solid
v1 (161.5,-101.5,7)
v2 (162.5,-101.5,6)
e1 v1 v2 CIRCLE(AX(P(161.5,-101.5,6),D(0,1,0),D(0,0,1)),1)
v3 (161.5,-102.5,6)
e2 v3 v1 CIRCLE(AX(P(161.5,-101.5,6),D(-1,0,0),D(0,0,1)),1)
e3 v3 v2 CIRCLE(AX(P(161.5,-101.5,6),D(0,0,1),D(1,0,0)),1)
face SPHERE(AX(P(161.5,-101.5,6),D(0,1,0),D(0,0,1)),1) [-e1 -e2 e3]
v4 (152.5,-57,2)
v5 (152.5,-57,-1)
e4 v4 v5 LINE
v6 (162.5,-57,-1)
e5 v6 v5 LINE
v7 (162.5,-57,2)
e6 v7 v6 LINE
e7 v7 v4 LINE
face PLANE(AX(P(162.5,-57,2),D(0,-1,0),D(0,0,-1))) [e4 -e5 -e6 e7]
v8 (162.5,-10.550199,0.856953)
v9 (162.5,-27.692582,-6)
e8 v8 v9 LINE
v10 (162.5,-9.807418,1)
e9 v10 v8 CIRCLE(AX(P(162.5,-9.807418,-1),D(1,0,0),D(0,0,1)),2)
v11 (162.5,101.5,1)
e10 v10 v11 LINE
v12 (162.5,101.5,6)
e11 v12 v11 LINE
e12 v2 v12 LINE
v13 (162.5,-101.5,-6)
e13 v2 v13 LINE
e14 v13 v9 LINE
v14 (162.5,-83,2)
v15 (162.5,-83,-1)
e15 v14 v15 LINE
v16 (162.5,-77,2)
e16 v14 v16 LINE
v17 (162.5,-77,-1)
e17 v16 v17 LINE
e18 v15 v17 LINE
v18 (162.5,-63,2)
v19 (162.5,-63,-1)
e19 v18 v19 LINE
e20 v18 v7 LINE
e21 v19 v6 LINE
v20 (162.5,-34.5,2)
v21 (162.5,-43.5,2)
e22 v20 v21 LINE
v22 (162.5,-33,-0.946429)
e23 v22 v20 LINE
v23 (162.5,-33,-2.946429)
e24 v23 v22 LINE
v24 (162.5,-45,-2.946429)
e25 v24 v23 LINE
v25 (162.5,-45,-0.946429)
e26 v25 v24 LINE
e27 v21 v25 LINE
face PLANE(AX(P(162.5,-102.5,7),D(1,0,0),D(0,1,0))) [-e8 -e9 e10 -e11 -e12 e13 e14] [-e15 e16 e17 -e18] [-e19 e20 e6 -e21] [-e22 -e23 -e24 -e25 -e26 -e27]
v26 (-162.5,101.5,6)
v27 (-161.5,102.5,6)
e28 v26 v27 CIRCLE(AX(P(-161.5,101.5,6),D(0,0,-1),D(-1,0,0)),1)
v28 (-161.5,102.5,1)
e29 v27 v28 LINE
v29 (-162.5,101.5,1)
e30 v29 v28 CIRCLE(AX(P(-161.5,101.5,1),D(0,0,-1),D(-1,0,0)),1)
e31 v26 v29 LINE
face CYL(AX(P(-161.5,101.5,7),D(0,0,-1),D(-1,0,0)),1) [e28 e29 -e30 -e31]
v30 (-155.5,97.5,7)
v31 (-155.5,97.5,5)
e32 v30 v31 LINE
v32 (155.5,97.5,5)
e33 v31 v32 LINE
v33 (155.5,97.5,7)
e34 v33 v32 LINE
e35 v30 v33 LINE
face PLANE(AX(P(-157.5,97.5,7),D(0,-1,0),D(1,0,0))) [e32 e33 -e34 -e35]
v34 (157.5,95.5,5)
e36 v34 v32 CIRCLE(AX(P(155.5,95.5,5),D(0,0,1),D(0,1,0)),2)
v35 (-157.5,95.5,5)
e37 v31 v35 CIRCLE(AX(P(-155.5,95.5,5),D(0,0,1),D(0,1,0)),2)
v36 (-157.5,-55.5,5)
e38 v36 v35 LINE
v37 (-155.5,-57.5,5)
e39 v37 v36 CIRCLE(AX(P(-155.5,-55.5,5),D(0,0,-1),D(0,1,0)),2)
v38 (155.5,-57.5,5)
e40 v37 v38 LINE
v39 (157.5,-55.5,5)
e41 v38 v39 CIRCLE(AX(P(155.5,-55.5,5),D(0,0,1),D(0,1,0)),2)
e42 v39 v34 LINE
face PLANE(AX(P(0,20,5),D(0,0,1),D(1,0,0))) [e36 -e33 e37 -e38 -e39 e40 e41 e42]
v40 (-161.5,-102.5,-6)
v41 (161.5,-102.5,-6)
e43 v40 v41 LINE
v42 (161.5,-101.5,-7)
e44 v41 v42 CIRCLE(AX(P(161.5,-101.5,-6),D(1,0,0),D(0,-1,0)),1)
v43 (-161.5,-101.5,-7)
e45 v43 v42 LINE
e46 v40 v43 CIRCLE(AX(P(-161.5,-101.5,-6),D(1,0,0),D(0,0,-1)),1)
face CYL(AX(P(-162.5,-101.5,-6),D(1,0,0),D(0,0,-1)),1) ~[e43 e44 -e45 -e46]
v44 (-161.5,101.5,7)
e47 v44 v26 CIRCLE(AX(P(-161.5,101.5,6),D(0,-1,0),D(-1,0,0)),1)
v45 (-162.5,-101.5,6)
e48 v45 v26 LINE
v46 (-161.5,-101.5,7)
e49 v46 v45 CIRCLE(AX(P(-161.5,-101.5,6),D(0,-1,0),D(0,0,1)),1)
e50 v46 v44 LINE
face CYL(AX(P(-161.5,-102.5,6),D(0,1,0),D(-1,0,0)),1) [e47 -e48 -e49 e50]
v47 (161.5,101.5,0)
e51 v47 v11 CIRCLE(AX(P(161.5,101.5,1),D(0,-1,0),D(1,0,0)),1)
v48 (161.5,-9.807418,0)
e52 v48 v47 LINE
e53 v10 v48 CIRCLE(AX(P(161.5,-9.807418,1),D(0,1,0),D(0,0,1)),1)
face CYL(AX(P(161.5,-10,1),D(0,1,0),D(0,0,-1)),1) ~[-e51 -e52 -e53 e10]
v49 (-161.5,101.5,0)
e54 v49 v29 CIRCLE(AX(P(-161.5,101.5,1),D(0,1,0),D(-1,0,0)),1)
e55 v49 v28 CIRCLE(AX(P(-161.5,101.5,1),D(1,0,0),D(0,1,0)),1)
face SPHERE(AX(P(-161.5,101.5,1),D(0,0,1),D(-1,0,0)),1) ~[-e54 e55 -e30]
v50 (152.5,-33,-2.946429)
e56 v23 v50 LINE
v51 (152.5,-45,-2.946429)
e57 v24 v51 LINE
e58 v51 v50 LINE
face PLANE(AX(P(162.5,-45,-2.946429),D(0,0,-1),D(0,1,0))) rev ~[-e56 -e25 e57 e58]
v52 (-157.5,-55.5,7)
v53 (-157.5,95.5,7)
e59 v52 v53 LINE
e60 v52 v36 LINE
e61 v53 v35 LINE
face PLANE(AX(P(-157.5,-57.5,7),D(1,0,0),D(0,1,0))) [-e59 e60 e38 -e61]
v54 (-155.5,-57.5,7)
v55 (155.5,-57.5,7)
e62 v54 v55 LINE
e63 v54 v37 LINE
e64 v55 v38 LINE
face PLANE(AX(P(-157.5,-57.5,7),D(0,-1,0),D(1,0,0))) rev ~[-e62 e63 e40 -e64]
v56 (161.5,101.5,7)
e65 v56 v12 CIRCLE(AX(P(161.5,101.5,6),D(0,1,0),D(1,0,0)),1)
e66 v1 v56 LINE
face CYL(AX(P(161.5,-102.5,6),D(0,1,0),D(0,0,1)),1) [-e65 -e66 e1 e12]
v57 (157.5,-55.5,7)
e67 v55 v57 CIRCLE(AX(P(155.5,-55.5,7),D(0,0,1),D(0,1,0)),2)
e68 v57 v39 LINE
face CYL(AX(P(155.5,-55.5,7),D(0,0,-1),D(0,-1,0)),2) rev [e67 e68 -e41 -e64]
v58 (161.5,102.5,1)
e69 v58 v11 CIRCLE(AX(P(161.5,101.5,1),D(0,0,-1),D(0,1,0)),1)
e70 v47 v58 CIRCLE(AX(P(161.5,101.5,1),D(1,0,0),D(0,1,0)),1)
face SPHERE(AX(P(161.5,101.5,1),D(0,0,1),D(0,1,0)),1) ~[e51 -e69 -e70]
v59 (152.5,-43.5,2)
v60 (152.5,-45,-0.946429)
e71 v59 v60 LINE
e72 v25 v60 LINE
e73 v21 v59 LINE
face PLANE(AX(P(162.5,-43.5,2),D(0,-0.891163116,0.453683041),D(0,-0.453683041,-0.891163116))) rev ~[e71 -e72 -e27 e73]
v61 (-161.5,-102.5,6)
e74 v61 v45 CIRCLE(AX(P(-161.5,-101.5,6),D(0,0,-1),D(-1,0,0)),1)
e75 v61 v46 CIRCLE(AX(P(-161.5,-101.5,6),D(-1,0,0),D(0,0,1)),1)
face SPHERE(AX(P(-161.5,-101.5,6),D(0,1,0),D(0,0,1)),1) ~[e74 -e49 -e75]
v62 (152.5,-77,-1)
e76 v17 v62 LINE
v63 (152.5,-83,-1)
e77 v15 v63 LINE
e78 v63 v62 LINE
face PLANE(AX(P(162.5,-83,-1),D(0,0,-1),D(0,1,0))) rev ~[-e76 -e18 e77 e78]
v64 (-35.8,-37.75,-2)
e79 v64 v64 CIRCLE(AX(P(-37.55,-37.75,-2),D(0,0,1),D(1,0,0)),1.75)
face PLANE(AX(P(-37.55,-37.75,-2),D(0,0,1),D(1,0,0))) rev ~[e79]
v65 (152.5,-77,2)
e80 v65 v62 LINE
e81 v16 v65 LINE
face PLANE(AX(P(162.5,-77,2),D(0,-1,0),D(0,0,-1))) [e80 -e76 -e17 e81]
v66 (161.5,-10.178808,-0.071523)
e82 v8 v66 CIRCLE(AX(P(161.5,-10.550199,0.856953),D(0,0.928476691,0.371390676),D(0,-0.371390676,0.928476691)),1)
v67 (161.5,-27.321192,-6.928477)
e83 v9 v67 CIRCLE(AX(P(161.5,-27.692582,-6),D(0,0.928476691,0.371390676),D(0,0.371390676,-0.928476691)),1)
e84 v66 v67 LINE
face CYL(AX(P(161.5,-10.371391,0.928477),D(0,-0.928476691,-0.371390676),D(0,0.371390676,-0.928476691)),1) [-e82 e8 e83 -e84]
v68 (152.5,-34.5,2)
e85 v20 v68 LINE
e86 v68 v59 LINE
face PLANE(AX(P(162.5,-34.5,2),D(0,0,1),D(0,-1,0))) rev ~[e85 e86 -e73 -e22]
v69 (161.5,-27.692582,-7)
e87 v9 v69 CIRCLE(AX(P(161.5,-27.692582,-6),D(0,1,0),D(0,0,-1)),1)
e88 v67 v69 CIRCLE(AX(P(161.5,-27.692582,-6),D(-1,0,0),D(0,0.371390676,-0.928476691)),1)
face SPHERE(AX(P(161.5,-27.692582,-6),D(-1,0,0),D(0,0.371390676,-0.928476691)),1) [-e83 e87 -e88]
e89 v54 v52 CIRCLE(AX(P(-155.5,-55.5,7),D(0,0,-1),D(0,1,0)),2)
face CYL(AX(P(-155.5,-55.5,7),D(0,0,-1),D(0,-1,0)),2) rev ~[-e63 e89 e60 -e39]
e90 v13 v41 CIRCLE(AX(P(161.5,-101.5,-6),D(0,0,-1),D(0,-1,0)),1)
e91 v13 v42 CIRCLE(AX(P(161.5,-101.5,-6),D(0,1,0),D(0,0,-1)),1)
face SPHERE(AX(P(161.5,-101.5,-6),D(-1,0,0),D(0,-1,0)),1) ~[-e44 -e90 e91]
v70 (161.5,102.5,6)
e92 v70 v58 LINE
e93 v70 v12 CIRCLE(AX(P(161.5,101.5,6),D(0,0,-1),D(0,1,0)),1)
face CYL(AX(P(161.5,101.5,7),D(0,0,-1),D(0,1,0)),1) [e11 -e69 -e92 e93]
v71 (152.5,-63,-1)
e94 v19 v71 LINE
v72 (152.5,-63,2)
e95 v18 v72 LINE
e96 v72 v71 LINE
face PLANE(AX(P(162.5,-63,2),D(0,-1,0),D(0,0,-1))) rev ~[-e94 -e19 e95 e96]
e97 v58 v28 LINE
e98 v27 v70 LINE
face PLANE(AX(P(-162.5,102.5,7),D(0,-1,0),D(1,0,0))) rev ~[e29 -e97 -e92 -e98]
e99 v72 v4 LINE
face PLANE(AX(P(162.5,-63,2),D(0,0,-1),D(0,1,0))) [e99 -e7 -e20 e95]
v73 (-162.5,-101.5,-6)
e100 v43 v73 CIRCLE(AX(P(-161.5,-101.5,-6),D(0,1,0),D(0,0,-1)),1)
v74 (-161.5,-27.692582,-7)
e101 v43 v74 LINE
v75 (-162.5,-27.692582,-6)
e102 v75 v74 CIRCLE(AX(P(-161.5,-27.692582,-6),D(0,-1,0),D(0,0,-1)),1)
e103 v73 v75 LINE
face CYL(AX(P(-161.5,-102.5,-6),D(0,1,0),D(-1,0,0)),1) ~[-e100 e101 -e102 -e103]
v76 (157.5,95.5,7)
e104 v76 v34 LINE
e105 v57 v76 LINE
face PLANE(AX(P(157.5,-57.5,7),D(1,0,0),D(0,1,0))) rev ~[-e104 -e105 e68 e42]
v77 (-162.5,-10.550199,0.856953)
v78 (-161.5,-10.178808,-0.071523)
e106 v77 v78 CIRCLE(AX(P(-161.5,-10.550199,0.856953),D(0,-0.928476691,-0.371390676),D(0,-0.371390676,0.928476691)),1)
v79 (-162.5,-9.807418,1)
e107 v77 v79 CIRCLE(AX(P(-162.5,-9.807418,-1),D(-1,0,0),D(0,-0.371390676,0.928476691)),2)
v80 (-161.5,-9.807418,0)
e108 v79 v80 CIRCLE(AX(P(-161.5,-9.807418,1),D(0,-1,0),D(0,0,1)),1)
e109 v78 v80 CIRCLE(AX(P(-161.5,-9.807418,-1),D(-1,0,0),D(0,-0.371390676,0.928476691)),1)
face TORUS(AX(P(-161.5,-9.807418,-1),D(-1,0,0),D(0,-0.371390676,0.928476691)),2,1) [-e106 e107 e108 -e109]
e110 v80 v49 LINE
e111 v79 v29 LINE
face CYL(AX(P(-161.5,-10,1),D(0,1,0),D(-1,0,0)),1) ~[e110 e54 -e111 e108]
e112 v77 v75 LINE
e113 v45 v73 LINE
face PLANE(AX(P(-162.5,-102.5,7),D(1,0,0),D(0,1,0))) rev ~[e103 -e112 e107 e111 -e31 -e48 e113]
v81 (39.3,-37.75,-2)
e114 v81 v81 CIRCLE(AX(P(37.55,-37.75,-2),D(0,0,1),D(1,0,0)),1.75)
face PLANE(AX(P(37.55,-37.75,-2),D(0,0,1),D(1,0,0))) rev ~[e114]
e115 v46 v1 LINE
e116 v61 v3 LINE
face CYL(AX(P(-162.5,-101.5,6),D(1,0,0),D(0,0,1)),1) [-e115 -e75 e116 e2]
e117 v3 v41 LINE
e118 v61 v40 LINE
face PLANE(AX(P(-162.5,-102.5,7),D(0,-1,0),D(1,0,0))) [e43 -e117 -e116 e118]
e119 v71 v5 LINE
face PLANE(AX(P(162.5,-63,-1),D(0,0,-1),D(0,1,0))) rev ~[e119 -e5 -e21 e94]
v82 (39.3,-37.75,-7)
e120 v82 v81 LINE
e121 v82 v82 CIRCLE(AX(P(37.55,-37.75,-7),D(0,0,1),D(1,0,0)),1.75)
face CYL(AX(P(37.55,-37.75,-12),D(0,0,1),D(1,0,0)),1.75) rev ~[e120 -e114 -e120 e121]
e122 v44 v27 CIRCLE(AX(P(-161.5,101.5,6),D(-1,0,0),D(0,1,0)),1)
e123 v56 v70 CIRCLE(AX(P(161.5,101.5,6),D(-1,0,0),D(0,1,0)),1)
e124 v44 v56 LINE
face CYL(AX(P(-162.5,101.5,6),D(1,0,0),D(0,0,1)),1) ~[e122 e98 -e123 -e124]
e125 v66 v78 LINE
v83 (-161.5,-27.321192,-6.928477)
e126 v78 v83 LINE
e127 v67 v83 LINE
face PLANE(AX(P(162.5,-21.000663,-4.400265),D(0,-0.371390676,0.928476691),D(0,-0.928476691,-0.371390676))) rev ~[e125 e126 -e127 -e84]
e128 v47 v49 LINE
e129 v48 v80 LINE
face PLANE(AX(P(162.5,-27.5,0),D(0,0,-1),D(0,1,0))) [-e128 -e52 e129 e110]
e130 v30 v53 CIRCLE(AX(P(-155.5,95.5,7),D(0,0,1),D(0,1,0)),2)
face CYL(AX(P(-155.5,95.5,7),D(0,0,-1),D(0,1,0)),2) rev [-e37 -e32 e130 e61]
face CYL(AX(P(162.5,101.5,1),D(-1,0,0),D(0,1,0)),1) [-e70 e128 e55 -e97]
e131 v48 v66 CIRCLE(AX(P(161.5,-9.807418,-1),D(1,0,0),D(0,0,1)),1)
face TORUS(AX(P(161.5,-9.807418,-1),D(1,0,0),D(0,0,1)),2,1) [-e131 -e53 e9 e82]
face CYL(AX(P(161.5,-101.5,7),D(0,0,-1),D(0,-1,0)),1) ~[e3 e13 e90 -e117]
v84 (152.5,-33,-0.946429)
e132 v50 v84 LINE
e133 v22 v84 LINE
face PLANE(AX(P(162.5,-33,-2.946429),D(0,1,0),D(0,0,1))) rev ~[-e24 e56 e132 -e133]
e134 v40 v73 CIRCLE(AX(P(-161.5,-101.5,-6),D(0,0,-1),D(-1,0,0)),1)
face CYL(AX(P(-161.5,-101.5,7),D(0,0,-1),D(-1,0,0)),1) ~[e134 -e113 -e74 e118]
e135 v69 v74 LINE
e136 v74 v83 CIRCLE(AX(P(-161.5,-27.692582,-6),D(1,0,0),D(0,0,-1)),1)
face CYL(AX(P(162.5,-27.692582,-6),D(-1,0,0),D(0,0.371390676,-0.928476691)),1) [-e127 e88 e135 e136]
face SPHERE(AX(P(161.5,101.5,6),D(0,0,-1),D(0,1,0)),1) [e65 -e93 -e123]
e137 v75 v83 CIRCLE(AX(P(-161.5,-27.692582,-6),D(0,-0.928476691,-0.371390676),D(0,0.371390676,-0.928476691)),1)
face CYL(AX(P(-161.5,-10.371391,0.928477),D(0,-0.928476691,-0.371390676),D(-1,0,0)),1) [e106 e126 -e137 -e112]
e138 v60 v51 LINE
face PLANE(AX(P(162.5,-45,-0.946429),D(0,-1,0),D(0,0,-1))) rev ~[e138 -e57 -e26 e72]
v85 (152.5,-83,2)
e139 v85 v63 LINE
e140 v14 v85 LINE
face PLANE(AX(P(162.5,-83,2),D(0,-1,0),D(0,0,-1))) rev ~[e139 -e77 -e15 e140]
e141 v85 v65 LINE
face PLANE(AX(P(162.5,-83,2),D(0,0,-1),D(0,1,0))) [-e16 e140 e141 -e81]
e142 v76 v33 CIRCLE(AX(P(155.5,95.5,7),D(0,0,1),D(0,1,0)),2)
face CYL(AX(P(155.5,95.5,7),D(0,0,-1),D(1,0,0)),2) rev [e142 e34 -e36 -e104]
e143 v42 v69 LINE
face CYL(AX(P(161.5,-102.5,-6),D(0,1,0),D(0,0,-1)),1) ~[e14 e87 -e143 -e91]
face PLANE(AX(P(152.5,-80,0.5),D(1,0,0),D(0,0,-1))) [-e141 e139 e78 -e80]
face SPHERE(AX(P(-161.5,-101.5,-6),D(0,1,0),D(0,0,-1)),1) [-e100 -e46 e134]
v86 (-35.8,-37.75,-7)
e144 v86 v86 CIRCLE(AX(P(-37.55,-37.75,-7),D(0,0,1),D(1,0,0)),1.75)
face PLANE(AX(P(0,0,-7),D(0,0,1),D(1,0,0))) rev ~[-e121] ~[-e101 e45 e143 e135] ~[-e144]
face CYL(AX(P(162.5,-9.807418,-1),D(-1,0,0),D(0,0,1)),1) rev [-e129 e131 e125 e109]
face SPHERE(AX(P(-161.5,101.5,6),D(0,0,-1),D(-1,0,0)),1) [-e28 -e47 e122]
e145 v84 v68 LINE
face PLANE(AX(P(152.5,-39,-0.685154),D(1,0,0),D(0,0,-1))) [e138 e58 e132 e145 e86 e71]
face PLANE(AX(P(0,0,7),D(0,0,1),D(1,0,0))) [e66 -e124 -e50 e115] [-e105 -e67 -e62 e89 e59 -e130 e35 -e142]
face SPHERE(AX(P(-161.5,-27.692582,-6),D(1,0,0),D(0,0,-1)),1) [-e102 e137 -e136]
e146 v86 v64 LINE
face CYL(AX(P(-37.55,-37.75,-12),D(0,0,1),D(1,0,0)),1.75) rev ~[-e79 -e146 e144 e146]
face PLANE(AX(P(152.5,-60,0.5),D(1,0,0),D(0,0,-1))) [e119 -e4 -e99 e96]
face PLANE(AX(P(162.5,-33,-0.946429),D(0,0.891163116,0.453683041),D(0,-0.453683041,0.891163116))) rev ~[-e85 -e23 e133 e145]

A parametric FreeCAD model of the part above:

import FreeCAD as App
import Part
import Sketcher
Q = App.Units.Quantity


def edges_at(feature, points):
    """Names of the edges that pass closest to the given points."""
    edges = feature.Shape.Edges
    near = lambda p: min(range(len(edges)), key=lambda i: edges[i].distToShape(Part.Vertex(*p))[0])
    return sorted({f"Edge{near(p) + 1}" for p in points})


def faces_at(feature, points):
    """Names of the faces that lie closest to the given points."""
    faces = feature.Shape.Faces
    near = lambda p: min(range(len(faces)), key=lambda i: faces[i].distToShape(Part.Vertex(*p))[0])
    return sorted({f"Face{near(p) + 1}" for p in points})


def add_polygon(sketch, points):
    """Adds a closed chain of lines whose ends are joined by coincident constraints."""
    first, n = sketch.GeometryCount, len(points)
    for a, b in zip(points, points[1:] + points[:1]):
        sketch.addGeometry(Part.LineSegment(App.Vector(*a, 0), App.Vector(*b, 0)), False)
    for i in range(n):
        sketch.addConstraint(Sketcher.Constraint("Coincident", first + i, 2, first + (i + 1) % n, 1))

doc = App.newDocument("Part")
body = doc.addObject("PartDesign::Body", "Body")

# Sketch on XY plane
sketch1 = body.newObject("Sketcher::SketchObject", "Sketch")
sketch1.AttachmentSupport = (doc.getObject("XY_Plane"), [""])
sketch1.MapMode = "FlatFace"
sketch1.AttachmentOffset = App.Placement(App.Vector(0, 0, 7), App.Rotation())
add_polygon(sketch1, [(-162, 102), (-162, -102), (162, -102), (162, 102)])  # lines 0-3
sketch1.addConstraint(Sketcher.Constraint("Vertical", 0))
sketch1.addConstraint(Sketcher.Constraint("Horizontal", 1))
sketch1.addConstraint(Sketcher.Constraint("Vertical", 2))
sketch1.addConstraint(Sketcher.Constraint("Horizontal", 3))
sketch1.addConstraint(Sketcher.Constraint("Symmetric", 0, 2, 2, 2, -1, 1))
sketch1.addConstraint(Sketcher.Constraint("DistanceX", 1, 1, 1, 2, Q("325 mm")))
sketch1.addConstraint(Sketcher.Constraint("DistanceY", 0, 2, 0, 1, Q("205 mm")))
pad1 = body.newObject("PartDesign::Pad", "Pad")
pad1.Profile = sketch1
pad1.Length = 14
pad1.Reversed = True

# Sketch on YZ plane
sketch2 = body.newObject("Sketcher::SketchObject", "Sketch001")
sketch2.AttachmentSupport = (doc.getObject("YZ_Plane"), [""])
sketch2.MapMode = "FlatFace"
sketch2.AttachmentOffset = App.Placement(App.Vector(0, 0, 162.5), App.Rotation())
add_polygon(sketch2, [(102, 0), (-28, 0), (-28, -7), (102, -7)])  # lines 0-3
sketch2.addConstraint(Sketcher.Constraint("Horizontal", 0))
sketch2.addConstraint(Sketcher.Constraint("Vertical", 1))
sketch2.addConstraint(Sketcher.Constraint("Horizontal", 2))
sketch2.addConstraint(Sketcher.Constraint("Vertical", 3))
sketch2.addConstraint(Sketcher.Constraint("PointOnObject", 0, 2, -1))
sketch2.addConstraint(Sketcher.Constraint("DistanceX", 0, 2, 0, 1, Q("130 mm")))
sketch2.addConstraint(Sketcher.Constraint("DistanceY", 1, 2, 1, 1, Q("7 mm")))
sketch2.addConstraint(Sketcher.Constraint("DistanceX", 0, 2, -1, 1, Q("27.5 mm")))
pocket1 = body.newObject("PartDesign::Pocket", "Pocket")
pocket1.Profile = sketch2
pocket1.Type = "ThroughAll"

# Sketch on YZ plane
sketch3 = body.newObject("Sketcher::SketchObject", "Sketch002")
sketch3.AttachmentSupport = (doc.getObject("YZ_Plane"), [""])
sketch3.MapMode = "FlatFace"
sketch3.AttachmentOffset = App.Placement(App.Vector(0, 0, 162.5), App.Rotation())
add_polygon(sketch3, [(-43.5, 2), (-45, -0.9), (-45, -2.9), (-33, -2.9), (-33, -0.9), (-34.5, 2)])  # lines 0-5
sketch3.addConstraint(Sketcher.Constraint("Vertical", 1))
sketch3.addConstraint(Sketcher.Constraint("Horizontal", 2))
sketch3.addConstraint(Sketcher.Constraint("Vertical", 3))
sketch3.addConstraint(Sketcher.Constraint("Horizontal", 5))
sketch3.addConstraint(Sketcher.Constraint("Horizontal", 0, 2, 3, 2))
sketch3.addConstraint(Sketcher.Constraint("Equal", 0, 4))
sketch3.addConstraint(Sketcher.Constraint("DistanceX", 2, 1, 2, 2, Q("12 mm")))
sketch3.addConstraint(Sketcher.Constraint("DistanceX", 5, 2, 5, 1, Q("9 mm")))
sketch3.addConstraint(Sketcher.Constraint("DistanceY", 1, 2, 1, 1, Q("2 mm")))
sketch3.addConstraint(Sketcher.Constraint("DistanceX", 0, 2, -1, 1, Q("45 mm")))
sketch3.addConstraint(Sketcher.Constraint("DistanceY", -1, 1, 4, 2, Q("2 mm")))
sketch3.addConstraint(Sketcher.Constraint("DistanceY", 0, 2, -1, 1, Q("0.946429 mm")))
pocket2 = body.newObject("PartDesign::Pocket", "Pocket001")
pocket2.Profile = sketch3
pocket2.Length = 10

# Sketch on YZ plane
sketch4 = body.newObject("Sketcher::SketchObject", "Sketch003")
sketch4.AttachmentSupport = (doc.getObject("YZ_Plane"), [""])
sketch4.MapMode = "FlatFace"
sketch4.AttachmentOffset = App.Placement(App.Vector(0, 0, 162.5), App.Rotation())
add_polygon(sketch4, [(-57, 2), (-63, 2), (-63, -1), (-57, -1)])  # lines 0-3
sketch4.addConstraint(Sketcher.Constraint("Horizontal", 0))
sketch4.addConstraint(Sketcher.Constraint("Vertical", 1))
sketch4.addConstraint(Sketcher.Constraint("Horizontal", 2))
sketch4.addConstraint(Sketcher.Constraint("Vertical", 3))
sketch4.addConstraint(Sketcher.Constraint("DistanceX", 0, 2, 0, 1, Q("6 mm")))
sketch4.addConstraint(Sketcher.Constraint("DistanceY", 1, 2, 1, 1, Q("3 mm")))
sketch4.addConstraint(Sketcher.Constraint("DistanceX", 0, 2, -1, 1, Q("63 mm")))
sketch4.addConstraint(Sketcher.Constraint("DistanceY", -1, 1, 0, 2, Q("2 mm")))
pocket3 = body.newObject("PartDesign::Pocket", "Pocket002")
pocket3.Profile = sketch4
pocket3.Length = 10

# Sketch on YZ plane
sketch5 = body.newObject("Sketcher::SketchObject", "Sketch004")
sketch5.AttachmentSupport = (doc.getObject("YZ_Plane"), [""])
sketch5.MapMode = "FlatFace"
sketch5.AttachmentOffset = App.Placement(App.Vector(0, 0, 162.5), App.Rotation())
add_polygon(sketch5, [(-77, 2), (-83, 2), (-83, -1), (-77, -1)])  # lines 0-3
sketch5.addConstraint(Sketcher.Constraint("Horizontal", 0))
sketch5.addConstraint(Sketcher.Constraint("Vertical", 1))
sketch5.addConstraint(Sketcher.Constraint("Horizontal", 2))
sketch5.addConstraint(Sketcher.Constraint("Vertical", 3))
sketch5.addConstraint(Sketcher.Constraint("DistanceX", 0, 2, 0, 1, Q("6 mm")))
sketch5.addConstraint(Sketcher.Constraint("DistanceY", 1, 2, 1, 1, Q("3 mm")))
sketch5.addConstraint(Sketcher.Constraint("DistanceX", 0, 2, -1, 1, Q("83 mm")))
sketch5.addConstraint(Sketcher.Constraint("DistanceY", -1, 1, 0, 2, Q("2 mm")))
pocket4 = body.newObject("PartDesign::Pocket", "Pocket003")
pocket4.Profile = sketch5
pocket4.Length = 10

# Sketch on XY plane
sketch6 = body.newObject("Sketcher::SketchObject", "Sketch005")
sketch6.AttachmentSupport = (doc.getObject("XY_Plane"), [""])
sketch6.MapMode = "FlatFace"
sketch6.AttachmentOffset = App.Placement(App.Vector(0, 0, 7), App.Rotation())
add_polygon(sketch6, [(-158, 98), (-158, -58), (158, -58), (158, 98)])  # lines 0-3
sketch6.addConstraint(Sketcher.Constraint("Vertical", 0))
sketch6.addConstraint(Sketcher.Constraint("Horizontal", 1))
sketch6.addConstraint(Sketcher.Constraint("Vertical", 2))
sketch6.addConstraint(Sketcher.Constraint("Horizontal", 3))
sketch6.addConstraint(Sketcher.Constraint("DistanceX", 1, 1, 1, 2, Q("315 mm")))
sketch6.addConstraint(Sketcher.Constraint("DistanceY", 0, 2, 0, 1, Q("155 mm")))
sketch6.addConstraint(Sketcher.Constraint("DistanceX", 0, 2, -1, 1, Q("157.5 mm")))
sketch6.addConstraint(Sketcher.Constraint("DistanceY", 0, 2, -1, 1, Q("57.5 mm")))
pocket5 = body.newObject("PartDesign::Pocket", "Pocket004")
pocket5.Profile = sketch6
pocket5.Length = 2
doc.recompute()

datumplane = body.newObject("PartDesign::Plane", "DatumPlane")
datumplane.AttachmentSupport = (doc.getObject("XY_Plane"), [""])
datumplane.MapMode = "FlatFace"
datumplane.AttachmentOffset = App.Placement(App.Vector(0, 0, -7), App.Rotation())
draft = body.newObject("PartDesign::Draft", "Draft")
draft.Base = (pocket5, faces_at(pocket5, [(0, -27.5, -3.5)]))
draft.NeutralPlane = (datumplane, [""])
draft.Angle = 68.198591
draft.Reversed = True

# Sketch on XY plane
sketch7 = body.newObject("Sketcher::SketchObject", "Sketch006")
sketch7.AttachmentSupport = (doc.getObject("XY_Plane"), [""])
sketch7.MapMode = "FlatFace"
sketch7.AttachmentOffset = App.Placement(App.Vector(0, 0, -7), App.Rotation())
sketch7.addGeometry(Part.Circle(App.Vector(37.5, -37.8, 0), App.Vector(0, 0, 1), 1.8), False)
sketch7.addGeometry(Part.Circle(App.Vector(-37.5, -37.8, 0), App.Vector(0, 0, 1), 1.8), False)
sketch7.addConstraint(Sketcher.Constraint("Equal", 0, 1))
sketch7.addConstraint(Sketcher.Constraint("Symmetric", 0, 3, 1, 3, -2))
sketch7.addConstraint(Sketcher.Constraint("Diameter", 0, Q("3.5 mm")))
sketch7.addConstraint(Sketcher.Constraint("DistanceX", 1, 3, 0, 3, Q("75.1 mm")))
sketch7.addConstraint(Sketcher.Constraint("DistanceY", 0, 3, -1, 1, Q("37.75 mm")))
doc.recompute()
hole = body.newObject("PartDesign::Hole", "Hole")
hole.Profile = sketch7
hole.ThreadType = "None"
hole.Diameter = 3.5
hole.DepthType = "Dimension"
hole.Depth = 5
hole.DrillPoint = "Flat"
hole.Reversed = True
doc.recompute()

fillet = body.newObject("PartDesign::Fillet", "Fillet")
fillet.Base = (hole, edges_at(hole, [
    (-162.5, -65, -7),
    (162.5, 102.5, 3.5),
    (-162.5, 102.5, 3.5),
    (-162.5, -18.75, -3.5),
    (0, -27.5, -7),
    (-162.5, 46.25, 0),
    (0, -10, 0),
    (0, 102.5, 0),
    (162.5, 46.25, 0),
    (162.5, -18.75, -3.5),
    (0, -102.5, -7),
    (-162.5, 0, 7),
    (0, 102.5, 7),
    (162.5, 0, 7),
    (0, -102.5, 7),
    (-162.5, -102.5, 0),
    (162.5, -102.5, 0),
    (162.5, -65, -7),
]))
fillet.Radius = 1
doc.recompute()

fillet2 = body.newObject("PartDesign::Fillet", "Fillet001")
fillet2.Base = (fillet, edges_at(fillet, [
    (-157.5, -57.5, 6),
    (-157.5, 97.5, 6),
    (157.5, 97.5, 6),
    (157.5, -57.5, 6),
]))
fillet2.Radius = 2

doc.recompute()
